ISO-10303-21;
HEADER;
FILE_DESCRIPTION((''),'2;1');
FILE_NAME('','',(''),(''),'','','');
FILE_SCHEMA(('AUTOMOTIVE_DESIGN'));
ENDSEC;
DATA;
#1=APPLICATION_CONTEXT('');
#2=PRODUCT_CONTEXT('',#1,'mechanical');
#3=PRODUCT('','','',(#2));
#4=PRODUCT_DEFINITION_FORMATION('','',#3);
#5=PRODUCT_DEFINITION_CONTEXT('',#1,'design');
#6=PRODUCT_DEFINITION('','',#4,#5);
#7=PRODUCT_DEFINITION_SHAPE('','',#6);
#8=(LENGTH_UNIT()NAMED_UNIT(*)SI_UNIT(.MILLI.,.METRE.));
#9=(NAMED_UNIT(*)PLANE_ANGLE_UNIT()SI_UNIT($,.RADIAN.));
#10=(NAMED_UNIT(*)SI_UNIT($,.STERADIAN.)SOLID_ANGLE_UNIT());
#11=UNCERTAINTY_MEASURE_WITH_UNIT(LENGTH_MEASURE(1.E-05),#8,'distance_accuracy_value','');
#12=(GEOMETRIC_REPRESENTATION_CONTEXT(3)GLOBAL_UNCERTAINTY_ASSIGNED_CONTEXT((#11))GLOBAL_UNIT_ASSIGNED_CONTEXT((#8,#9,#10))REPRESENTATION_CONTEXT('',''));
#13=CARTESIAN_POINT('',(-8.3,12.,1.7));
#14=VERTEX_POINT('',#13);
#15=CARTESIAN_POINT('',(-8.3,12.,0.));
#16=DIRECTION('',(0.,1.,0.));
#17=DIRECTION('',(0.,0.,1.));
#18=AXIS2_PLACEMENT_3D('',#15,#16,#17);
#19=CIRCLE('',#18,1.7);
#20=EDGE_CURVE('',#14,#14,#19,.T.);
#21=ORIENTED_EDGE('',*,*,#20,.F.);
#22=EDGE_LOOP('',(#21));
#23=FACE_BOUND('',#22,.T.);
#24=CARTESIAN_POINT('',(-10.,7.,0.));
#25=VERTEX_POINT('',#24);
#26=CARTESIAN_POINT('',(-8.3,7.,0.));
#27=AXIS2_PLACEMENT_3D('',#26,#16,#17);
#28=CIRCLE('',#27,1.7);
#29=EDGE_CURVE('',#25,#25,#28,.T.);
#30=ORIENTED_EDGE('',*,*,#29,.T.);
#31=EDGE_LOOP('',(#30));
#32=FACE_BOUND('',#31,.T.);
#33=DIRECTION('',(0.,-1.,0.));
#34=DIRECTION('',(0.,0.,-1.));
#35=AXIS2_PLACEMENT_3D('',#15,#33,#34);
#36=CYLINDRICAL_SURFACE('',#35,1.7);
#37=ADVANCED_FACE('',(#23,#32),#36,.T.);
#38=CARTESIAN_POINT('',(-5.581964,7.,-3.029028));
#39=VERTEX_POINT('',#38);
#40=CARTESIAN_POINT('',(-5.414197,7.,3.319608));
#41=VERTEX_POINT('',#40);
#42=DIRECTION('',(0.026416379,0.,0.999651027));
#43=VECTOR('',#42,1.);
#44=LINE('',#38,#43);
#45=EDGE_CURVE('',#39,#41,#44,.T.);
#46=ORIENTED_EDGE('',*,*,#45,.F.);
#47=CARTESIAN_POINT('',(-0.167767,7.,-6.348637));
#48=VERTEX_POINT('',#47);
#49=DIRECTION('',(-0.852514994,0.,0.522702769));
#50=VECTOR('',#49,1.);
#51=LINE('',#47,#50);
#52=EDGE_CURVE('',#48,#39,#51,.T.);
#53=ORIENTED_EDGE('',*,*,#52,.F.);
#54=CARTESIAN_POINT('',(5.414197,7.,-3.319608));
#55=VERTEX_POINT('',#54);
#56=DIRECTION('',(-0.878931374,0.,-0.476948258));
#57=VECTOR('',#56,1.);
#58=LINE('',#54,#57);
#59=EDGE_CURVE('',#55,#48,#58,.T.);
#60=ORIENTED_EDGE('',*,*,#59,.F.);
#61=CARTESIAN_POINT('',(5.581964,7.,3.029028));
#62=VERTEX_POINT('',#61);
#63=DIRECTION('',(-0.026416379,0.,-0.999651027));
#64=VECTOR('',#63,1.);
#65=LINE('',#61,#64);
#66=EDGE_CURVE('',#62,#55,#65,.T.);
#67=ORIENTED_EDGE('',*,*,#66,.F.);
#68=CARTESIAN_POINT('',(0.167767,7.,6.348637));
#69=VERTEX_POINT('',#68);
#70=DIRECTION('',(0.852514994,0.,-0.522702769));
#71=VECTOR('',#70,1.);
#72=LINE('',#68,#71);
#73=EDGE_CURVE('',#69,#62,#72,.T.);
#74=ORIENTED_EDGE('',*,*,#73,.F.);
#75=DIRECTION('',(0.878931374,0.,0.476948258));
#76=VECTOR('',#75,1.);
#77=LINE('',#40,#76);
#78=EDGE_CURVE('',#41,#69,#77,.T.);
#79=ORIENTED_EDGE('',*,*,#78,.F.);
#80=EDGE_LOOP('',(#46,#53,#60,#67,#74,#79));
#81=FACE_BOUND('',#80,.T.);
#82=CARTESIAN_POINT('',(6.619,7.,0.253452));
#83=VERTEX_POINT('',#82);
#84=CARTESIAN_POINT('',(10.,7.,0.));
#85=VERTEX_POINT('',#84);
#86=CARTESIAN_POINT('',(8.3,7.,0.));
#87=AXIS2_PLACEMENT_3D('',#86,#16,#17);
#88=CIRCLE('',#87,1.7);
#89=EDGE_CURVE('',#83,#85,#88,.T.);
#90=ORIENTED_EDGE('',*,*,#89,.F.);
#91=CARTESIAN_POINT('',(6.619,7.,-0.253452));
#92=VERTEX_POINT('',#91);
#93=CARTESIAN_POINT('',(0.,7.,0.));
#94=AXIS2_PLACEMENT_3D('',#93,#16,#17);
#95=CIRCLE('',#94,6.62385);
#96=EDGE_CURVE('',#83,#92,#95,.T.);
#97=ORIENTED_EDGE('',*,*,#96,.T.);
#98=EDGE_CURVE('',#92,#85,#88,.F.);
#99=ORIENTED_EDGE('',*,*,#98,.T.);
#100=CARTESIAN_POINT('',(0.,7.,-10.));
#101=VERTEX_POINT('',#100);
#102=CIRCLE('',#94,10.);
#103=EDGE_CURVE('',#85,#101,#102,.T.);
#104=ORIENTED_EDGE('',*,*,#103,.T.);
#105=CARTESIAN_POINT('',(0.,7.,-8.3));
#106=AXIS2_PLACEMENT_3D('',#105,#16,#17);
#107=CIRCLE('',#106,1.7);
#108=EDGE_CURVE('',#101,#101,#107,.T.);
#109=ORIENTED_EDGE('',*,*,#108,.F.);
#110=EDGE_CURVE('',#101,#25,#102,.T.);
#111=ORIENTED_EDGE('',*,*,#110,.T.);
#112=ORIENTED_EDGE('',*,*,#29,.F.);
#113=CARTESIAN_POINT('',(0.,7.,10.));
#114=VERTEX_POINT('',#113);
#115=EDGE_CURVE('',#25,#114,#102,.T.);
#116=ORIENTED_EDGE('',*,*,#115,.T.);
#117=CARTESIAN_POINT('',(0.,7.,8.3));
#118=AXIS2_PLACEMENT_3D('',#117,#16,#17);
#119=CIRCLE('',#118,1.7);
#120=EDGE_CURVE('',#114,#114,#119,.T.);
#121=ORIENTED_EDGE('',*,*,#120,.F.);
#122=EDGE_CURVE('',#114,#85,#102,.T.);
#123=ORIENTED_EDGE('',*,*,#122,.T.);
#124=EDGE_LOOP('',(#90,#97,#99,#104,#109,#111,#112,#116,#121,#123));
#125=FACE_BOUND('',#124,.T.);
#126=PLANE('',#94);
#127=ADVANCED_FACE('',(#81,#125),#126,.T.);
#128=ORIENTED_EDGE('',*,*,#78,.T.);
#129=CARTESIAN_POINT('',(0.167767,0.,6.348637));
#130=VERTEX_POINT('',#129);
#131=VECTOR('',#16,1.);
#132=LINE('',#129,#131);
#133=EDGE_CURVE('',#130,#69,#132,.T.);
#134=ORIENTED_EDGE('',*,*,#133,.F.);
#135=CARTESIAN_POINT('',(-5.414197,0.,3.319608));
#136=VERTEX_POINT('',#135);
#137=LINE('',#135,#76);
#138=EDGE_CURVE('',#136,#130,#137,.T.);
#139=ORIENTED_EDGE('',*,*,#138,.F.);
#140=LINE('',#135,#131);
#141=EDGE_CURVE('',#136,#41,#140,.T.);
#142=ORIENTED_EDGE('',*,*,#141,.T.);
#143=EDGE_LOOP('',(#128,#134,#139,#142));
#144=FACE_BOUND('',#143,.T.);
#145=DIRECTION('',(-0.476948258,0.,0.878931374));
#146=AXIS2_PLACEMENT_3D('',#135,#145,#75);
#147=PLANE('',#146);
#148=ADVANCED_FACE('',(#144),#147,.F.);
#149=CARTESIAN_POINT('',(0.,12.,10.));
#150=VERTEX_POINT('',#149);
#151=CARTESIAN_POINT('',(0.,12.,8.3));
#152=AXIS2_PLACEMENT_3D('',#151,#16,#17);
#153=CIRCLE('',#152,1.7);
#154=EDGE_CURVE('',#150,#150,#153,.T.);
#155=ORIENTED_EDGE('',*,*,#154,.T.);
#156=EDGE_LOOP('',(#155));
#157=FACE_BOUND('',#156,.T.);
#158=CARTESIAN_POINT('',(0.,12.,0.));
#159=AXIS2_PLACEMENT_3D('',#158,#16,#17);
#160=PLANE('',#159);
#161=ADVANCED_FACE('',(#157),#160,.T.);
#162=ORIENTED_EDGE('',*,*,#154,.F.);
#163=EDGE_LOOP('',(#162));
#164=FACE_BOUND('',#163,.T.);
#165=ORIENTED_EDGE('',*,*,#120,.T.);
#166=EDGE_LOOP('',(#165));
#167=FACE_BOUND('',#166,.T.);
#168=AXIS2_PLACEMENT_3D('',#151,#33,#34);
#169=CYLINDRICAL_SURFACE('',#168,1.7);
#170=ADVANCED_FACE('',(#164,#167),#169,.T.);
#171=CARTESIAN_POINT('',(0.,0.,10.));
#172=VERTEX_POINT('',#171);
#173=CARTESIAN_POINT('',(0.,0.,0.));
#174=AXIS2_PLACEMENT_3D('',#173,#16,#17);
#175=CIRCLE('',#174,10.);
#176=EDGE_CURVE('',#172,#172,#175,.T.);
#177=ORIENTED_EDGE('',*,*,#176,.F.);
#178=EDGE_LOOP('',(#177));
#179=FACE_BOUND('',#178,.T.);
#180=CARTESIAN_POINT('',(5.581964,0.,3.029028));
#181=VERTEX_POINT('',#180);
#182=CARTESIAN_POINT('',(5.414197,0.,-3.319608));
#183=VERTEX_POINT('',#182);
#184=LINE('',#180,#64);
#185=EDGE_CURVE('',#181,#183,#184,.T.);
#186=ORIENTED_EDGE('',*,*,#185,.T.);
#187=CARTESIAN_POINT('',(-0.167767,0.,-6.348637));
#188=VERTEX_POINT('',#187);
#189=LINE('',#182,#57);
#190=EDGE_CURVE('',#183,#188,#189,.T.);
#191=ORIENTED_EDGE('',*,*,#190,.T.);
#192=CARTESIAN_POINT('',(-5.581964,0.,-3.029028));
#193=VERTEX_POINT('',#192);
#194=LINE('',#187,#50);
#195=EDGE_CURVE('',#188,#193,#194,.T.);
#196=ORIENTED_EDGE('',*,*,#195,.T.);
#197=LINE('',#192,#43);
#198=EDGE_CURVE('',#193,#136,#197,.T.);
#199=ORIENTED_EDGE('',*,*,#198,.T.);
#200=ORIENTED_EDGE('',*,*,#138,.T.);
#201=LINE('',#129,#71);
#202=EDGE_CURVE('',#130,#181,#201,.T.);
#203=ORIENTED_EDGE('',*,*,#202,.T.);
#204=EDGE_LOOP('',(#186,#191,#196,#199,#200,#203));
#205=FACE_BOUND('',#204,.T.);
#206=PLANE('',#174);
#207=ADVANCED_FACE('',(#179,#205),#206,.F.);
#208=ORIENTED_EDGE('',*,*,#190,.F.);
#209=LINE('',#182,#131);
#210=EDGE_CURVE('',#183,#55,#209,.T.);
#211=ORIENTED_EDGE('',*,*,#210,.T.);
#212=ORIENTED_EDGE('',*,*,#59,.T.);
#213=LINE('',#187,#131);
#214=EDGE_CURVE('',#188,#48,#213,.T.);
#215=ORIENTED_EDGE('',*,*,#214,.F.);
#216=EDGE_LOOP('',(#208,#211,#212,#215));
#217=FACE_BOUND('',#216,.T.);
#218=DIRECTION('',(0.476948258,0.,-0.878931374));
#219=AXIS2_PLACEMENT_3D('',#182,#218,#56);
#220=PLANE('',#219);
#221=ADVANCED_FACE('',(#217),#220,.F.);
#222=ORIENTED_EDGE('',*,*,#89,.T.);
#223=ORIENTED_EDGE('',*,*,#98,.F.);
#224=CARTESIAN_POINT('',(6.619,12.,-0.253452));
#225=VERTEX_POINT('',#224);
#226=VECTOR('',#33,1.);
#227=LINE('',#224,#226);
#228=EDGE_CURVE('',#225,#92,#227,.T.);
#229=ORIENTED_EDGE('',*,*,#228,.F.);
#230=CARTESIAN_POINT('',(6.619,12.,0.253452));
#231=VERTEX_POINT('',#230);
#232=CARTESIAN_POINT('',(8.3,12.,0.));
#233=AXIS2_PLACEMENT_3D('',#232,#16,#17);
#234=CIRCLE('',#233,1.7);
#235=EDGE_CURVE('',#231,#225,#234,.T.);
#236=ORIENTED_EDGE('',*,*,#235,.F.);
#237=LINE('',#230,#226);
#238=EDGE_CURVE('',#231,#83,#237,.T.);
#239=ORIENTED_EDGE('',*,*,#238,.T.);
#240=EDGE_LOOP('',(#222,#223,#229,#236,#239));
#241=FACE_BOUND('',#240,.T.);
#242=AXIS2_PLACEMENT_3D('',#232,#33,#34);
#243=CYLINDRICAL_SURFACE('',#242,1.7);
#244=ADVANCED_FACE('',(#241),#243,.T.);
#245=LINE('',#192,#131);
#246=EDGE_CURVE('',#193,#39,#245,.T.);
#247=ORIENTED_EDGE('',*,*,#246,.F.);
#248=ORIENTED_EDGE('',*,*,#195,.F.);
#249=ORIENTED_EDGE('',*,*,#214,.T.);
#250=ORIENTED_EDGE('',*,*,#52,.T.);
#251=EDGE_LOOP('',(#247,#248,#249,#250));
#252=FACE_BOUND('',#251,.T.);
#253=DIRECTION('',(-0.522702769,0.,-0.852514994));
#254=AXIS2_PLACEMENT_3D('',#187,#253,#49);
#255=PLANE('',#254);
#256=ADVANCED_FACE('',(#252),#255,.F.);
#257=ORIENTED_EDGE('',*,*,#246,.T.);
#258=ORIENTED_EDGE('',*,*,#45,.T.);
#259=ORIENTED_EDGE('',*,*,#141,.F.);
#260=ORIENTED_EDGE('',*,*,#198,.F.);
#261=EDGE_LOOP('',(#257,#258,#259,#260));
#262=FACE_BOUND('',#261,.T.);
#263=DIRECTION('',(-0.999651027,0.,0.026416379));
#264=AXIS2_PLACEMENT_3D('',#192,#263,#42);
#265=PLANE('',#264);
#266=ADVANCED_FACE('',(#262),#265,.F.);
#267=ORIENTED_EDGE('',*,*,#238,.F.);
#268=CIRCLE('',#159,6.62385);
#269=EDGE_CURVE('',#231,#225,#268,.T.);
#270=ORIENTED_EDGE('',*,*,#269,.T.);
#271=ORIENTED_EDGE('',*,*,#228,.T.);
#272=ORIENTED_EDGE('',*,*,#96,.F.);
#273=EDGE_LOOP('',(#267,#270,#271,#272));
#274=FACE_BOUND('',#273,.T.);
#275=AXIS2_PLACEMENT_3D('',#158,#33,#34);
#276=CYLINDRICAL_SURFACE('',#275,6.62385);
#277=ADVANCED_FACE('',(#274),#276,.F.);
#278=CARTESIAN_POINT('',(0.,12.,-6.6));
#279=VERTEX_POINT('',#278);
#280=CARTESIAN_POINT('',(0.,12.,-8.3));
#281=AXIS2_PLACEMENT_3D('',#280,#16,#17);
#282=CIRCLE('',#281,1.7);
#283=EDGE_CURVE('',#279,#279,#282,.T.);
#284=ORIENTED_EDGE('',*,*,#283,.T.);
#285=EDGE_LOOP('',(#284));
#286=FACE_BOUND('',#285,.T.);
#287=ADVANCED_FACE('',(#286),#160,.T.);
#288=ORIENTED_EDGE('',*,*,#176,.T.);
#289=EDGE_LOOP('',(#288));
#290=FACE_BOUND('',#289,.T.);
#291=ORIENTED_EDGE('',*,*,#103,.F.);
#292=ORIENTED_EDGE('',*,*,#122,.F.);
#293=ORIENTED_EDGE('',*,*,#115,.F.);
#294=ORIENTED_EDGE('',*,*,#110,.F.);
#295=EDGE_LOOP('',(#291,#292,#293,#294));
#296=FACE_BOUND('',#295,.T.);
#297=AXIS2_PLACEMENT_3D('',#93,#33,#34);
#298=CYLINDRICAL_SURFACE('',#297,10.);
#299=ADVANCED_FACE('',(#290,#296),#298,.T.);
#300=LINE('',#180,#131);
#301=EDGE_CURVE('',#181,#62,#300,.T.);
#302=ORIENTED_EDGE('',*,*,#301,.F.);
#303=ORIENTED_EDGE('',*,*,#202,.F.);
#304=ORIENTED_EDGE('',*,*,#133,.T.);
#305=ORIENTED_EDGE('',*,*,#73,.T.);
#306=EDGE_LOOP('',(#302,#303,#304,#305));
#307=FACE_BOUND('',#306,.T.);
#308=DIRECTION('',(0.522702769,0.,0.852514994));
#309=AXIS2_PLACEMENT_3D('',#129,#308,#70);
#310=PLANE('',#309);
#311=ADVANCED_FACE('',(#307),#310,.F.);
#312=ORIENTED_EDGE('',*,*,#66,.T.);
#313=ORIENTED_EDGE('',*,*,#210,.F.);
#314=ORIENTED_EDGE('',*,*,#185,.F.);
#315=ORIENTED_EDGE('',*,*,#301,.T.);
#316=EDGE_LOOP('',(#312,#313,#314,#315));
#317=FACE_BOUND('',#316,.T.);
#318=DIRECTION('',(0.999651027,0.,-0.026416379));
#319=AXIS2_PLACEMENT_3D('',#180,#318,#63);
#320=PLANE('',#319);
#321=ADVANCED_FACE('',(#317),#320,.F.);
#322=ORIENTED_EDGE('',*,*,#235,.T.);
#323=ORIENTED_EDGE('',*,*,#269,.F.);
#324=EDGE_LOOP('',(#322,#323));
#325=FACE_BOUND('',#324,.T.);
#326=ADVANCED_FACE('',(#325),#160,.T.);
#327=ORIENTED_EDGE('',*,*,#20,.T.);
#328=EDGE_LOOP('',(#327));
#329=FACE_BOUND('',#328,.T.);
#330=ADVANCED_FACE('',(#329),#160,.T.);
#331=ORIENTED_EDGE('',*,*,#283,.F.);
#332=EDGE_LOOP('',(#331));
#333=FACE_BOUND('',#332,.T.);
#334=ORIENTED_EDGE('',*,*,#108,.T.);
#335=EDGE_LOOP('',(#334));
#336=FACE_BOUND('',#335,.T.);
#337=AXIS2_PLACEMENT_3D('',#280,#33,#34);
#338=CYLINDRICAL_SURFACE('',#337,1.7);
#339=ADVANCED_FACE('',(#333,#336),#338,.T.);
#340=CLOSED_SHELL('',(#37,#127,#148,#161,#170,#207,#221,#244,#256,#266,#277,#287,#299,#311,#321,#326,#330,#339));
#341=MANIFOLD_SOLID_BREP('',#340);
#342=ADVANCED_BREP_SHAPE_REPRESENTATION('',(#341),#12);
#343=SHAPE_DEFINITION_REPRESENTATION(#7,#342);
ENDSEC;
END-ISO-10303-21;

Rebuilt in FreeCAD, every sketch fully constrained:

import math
import FreeCAD as App
import Part
import Sketcher
from FreeCAD import Vector
Q = App.Units.Quantity

doc = App.newDocument("Part")
body = doc.addObject("PartDesign::Body", "Body")

sketch1 = doc.addObject("Sketcher::SketchObject", "Sketch")
body.addObject(sketch1)
sketch1.AttachmentSupport = (doc.XZ_Plane, [""])
sketch1.MapMode = "FlatFace"
sketch1.addGeometry(Part.Circle(Vector(0, 0, 0), Vector(0, 0, 1), 10), False)
sketch1.addConstraint([
    Sketcher.Constraint("Coincident", 0, 3, -1, 1),
    Sketcher.Constraint("Diameter", 0, Q("20 mm")),
])
pad1 = doc.addObject("PartDesign::Pad", "Pad")
body.addObject(pad1)
pad1.Profile = sketch1
pad1.Length = 7
pad1.Reversed = True

sketch2 = doc.addObject("Sketcher::SketchObject", "Sketch001")
body.addObject(sketch2)
sketch2.AttachmentSupport = (doc.XZ_Plane, [""])
sketch2.MapMode = "FlatFace"
sketch2.AttachmentOffset = App.Placement(Vector(0, 0, -7), App.Rotation())
sketch2.addGeometry([
    Part.ArcOfCircle(Part.Circle(Vector(0, 0, 0), Vector(0, 0, 1), 6.62385), math.radians(-2.192874), math.radians(2.192874)),
    Part.ArcOfCircle(Part.Circle(Vector(8.3, 0, 0), Vector(0, 0, 1), 1.7), math.radians(-171.425842), math.radians(171.425842)),
    Part.Circle(Vector(0, -8.3, 0), Vector(0, 0, 1), 1.7),
    Part.Circle(Vector(0, 8.3, 0), Vector(0, 0, 1), 1.7),
    Part.Circle(Vector(-8.3, 0, 0), Vector(0, 0, 1), 1.7),
], False)
sketch2.addConstraint([
    Sketcher.Constraint("Coincident", 0, 1, 1, 1),
    Sketcher.Constraint("Coincident", 1, 2, 0, 2),
    Sketcher.Constraint("Coincident", 0, 3, -1, 1),
    Sketcher.Constraint("Equal", 1, 2),
    Sketcher.Constraint("Equal", 2, 3),
    Sketcher.Constraint("Equal", 3, 4),
    Sketcher.Constraint("Symmetric", 2, 3, 3, 3, -1, 1),
    Sketcher.Constraint("Symmetric", 1, 3, 4, 3, -1, 1),
    Sketcher.Constraint("PointOnObject", 1, 3, -1),
    Sketcher.Constraint("PointOnObject", 2, 3, -2),
    Sketcher.Constraint("Diameter", 2, Q("3.4 mm")),
    Sketcher.Constraint("DistanceX", -1, 1, 1, 3, Q("8.3 mm")),
    Sketcher.Constraint("DistanceY", 2, 3, -1, 1, Q("8.3 mm")),
    Sketcher.Constraint("Radius", 0, Q("6.62385 mm")),
])
pad2 = doc.addObject("PartDesign::Pad", "Pad001")
body.addObject(pad2)
pad2.Profile = sketch2
pad2.Length = 5
pad2.Reversed = True

sketch3 = doc.addObject("Sketcher::SketchObject", "Sketch002")
body.addObject(sketch3)
sketch3.AttachmentSupport = (doc.XZ_Plane, [""])
sketch3.MapMode = "FlatFace"
sketch3.AttachmentOffset = App.Placement(Vector(0, 0, -7), App.Rotation())
sketch3.addGeometry([
    Part.LineSegment(Vector(-5.581964, -3.029028, 0), Vector(-5.414197, 3.319608, 0)),
    Part.LineSegment(Vector(-5.414197, 3.319608, 0), Vector(0.167767, 6.348637, 0)),
    Part.LineSegment(Vector(0.167767, 6.348637, 0), Vector(5.581964, 3.029028, 0)),
    Part.LineSegment(Vector(5.581964, 3.029028, 0), Vector(5.414197, -3.319608, 0)),
    Part.LineSegment(Vector(5.414197, -3.319608, 0), Vector(-0.167767, -6.348637, 0)),
    Part.LineSegment(Vector(-0.167767, -6.348637, 0), Vector(-5.581964, -3.029028, 0)),
], False)
sketch3.addConstraint([
    Sketcher.Constraint("Coincident", 0, 2, 1, 1),
    Sketcher.Constraint("Coincident", 1, 2, 2, 1),
    Sketcher.Constraint("Coincident", 2, 2, 3, 1),
    Sketcher.Constraint("Coincident", 3, 2, 4, 1),
    Sketcher.Constraint("Coincident", 4, 2, 5, 1),
    Sketcher.Constraint("Coincident", 5, 2, 0, 1),
    Sketcher.Constraint("Symmetric", 0, 2, 3, 2, -1, 1),
    Sketcher.Constraint("Symmetric", 1, 2, 4, 2, -1, 1),
    Sketcher.Constraint("Symmetric", 2, 2, 5, 2, -1, 1),
    Sketcher.Constraint("Equal", 0, 1),
    Sketcher.Constraint("Equal", 1, 2),
    Sketcher.Constraint("DistanceY", -1, 1, 0, 2, Q("3.319608 mm")),
    Sketcher.Constraint("DistanceY", -1, 1, 2, 2, Q("3.029028 mm")),
    Sketcher.Constraint("DistanceY", 0, 2, 1, 2, Q("3.029028 mm")),
    Sketcher.Constraint("DistanceX", 0, 2, 2, 2, Q("10.996161 mm")),
])
pocket1 = doc.addObject("PartDesign::Pocket", "Pocket")
body.addObject(pocket1)
pocket1.Profile = sketch3
pocket1.Length = 7
pocket1.Reversed = True

doc.recompute()
